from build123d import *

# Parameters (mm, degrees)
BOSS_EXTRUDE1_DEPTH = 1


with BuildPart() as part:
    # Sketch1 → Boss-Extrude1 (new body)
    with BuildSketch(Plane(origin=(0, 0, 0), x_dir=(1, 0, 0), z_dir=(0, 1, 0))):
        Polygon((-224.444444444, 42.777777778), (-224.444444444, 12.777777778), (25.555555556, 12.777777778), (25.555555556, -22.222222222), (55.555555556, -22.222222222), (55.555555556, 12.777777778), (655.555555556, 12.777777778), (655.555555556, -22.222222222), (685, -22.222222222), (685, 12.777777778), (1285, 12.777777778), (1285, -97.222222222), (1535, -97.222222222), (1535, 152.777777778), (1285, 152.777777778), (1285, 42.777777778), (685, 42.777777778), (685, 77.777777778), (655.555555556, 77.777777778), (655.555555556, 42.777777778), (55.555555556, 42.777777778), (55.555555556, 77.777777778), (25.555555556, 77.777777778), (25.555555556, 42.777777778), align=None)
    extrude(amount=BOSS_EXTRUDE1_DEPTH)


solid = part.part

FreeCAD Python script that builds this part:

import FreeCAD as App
import Part
import Sketcher
from FreeCAD import Vector

doc = App.newDocument("Part")
params = doc.addObject("Spreadsheet::Sheet", "Params")
for row, (alias, value) in enumerate([
    ("sketch1_width", "250 mm"),
    ("sketch1_width2", "30 mm"),
    ("sketch1_width3", "600 mm"),
    ("sketch1_height", "35 mm"),
    ("pad1_length", "1 mm"),
], start=1):
    params.set(f"A{row}", alias)
    params.set(f"B{row}", "=" + value)
    params.setAlias(f"B{row}", alias)

body = doc.addObject("PartDesign::Body", "Body")

sketch1 = body.newObject("Sketcher::SketchObject", "Sketch")
sketch1.AttachmentSupport = (doc.getObject("XZ_Plane"), [""])
sketch1.MapMode = "FlatFace"
sketch1.addGeometry(Part.LineSegment(Vector(-224.444444, -42.777778, 0), Vector(-224.444444, -12.777778, 0)), False)
sketch1.addGeometry(Part.LineSegment(Vector(-224.444444, -12.777778, 0), Vector(25.555556, -12.777778, 0)), False)
sketch1.addGeometry(Part.LineSegment(Vector(25.555556, -12.777778, 0), Vector(25.555556, 22.222222, 0)), False)
sketch1.addGeometry(Part.LineSegment(Vector(25.555556, 22.222222, 0), Vector(55.555556, 22.222222, 0)), False)
sketch1.addGeometry(Part.LineSegment(Vector(55.555556, 22.222222, 0), Vector(55.555556, -12.777778, 0)), False)
sketch1.addGeometry(Part.LineSegment(Vector(55.555556, -12.777778, 0), Vector(655.555556, -12.777778, 0)), False)
sketch1.addGeometry(Part.LineSegment(Vector(655.555556, -12.777778, 0), Vector(655.555556, 22.222222, 0)), False)
sketch1.addGeometry(Part.LineSegment(Vector(655.555556, 22.222222, 0), Vector(685, 22.222222, 0)), False)
sketch1.addGeometry(Part.LineSegment(Vector(685, 22.222222, 0), Vector(685, -12.777778, 0)), False)
sketch1.addGeometry(Part.LineSegment(Vector(685, -12.777778, 0), Vector(1285, -12.777778, 0)), False)
sketch1.addGeometry(Part.LineSegment(Vector(1285, -12.777778, 0), Vector(1285, 97.222222, 0)), False)
sketch1.addGeometry(Part.LineSegment(Vector(1285, 97.222222, 0), Vector(1535, 97.222222, 0)), False)
sketch1.addGeometry(Part.LineSegment(Vector(1535, 97.222222, 0), Vector(1535, -152.777778, 0)), False)
sketch1.addGeometry(Part.LineSegment(Vector(1535, -152.777778, 0), Vector(1285, -152.777778, 0)), False)
sketch1.addGeometry(Part.LineSegment(Vector(1285, -152.777778, 0), Vector(1285, -42.777778, 0)), False)
sketch1.addGeometry(Part.LineSegment(Vector(1285, -42.777778, 0), Vector(685, -42.777778, 0)), False)
sketch1.addGeometry(Part.LineSegment(Vector(685, -42.777778, 0), Vector(685, -77.777778, 0)), False)
sketch1.addGeometry(Part.LineSegment(Vector(685, -77.777778, 0), Vector(655.555556, -77.777778, 0)), False)
sketch1.addGeometry(Part.LineSegment(Vector(655.555556, -77.777778, 0), Vector(655.555556, -42.777778, 0)), False)
sketch1.addGeometry(Part.LineSegment(Vector(655.555556, -42.777778, 0), Vector(55.555556, -42.777778, 0)), False)
sketch1.addGeometry(Part.LineSegment(Vector(55.555556, -42.777778, 0), Vector(55.555556, -77.777778, 0)), False)
sketch1.addGeometry(Part.LineSegment(Vector(55.555556, -77.777778, 0), Vector(25.555556, -77.777778, 0)), False)
sketch1.addGeometry(Part.LineSegment(Vector(25.555556, -77.777778, 0), Vector(25.555556, -42.777778, 0)), False)
sketch1.addGeometry(Part.LineSegment(Vector(25.555556, -42.777778, 0), Vector(-224.444444, -42.777778, 0)), False)
sketch1.addConstraint(Sketcher.Constraint("Coincident", 0, 2, 1, 1))
sketch1.addConstraint(Sketcher.Constraint("Coincident", 1, 2, 2, 1))
sketch1.addConstraint(Sketcher.Constraint("Coincident", 2, 2, 3, 1))
sketch1.addConstraint(Sketcher.Constraint("Coincident", 3, 2, 4, 1))
sketch1.addConstraint(Sketcher.Constraint("Coincident", 4, 2, 5, 1))
sketch1.addConstraint(Sketcher.Constraint("Coincident", 5, 2, 6, 1))
sketch1.addConstraint(Sketcher.Constraint("Coincident", 6, 2, 7, 1))
sketch1.addConstraint(Sketcher.Constraint("Coincident", 7, 2, 8, 1))
sketch1.addConstraint(Sketcher.Constraint("Coincident", 8, 2, 9, 1))
sketch1.addConstraint(Sketcher.Constraint("Coincident", 9, 2, 10, 1))
sketch1.addConstraint(Sketcher.Constraint("Coincident", 10, 2, 11, 1))
sketch1.addConstraint(Sketcher.Constraint("Coincident", 11, 2, 12, 1))
sketch1.addConstraint(Sketcher.Constraint("Coincident", 12, 2, 13, 1))
sketch1.addConstraint(Sketcher.Constraint("Coincident", 13, 2, 14, 1))
sketch1.addConstraint(Sketcher.Constraint("Coincident", 14, 2, 15, 1))
sketch1.addConstraint(Sketcher.Constraint("Coincident", 15, 2, 16, 1))
sketch1.addConstraint(Sketcher.Constraint("Coincident", 16, 2, 17, 1))
sketch1.addConstraint(Sketcher.Constraint("Coincident", 17, 2, 18, 1))
sketch1.addConstraint(Sketcher.Constraint("Coincident", 18, 2, 19, 1))
sketch1.addConstraint(Sketcher.Constraint("Coincident", 19, 2, 20, 1))
sketch1.addConstraint(Sketcher.Constraint("Coincident", 20, 2, 21, 1))
sketch1.addConstraint(Sketcher.Constraint("Coincident", 21, 2, 22, 1))
sketch1.addConstraint(Sketcher.Constraint("Coincident", 22, 2, 23, 1))
sketch1.addConstraint(Sketcher.Constraint("Coincident", 23, 2, 0, 1))
sketch1.addConstraint(Sketcher.Constraint("Vertical", 0))
sketch1.addConstraint(Sketcher.Constraint("Horizontal", 1))
sketch1.addConstraint(Sketcher.Constraint("Vertical", 2))
sketch1.addConstraint(Sketcher.Constraint("Horizontal", 3))
sketch1.addConstraint(Sketcher.Constraint("Vertical", 4))
sketch1.addConstraint(Sketcher.Constraint("Horizontal", 5))
sketch1.addConstraint(Sketcher.Constraint("Vertical", 6))
sketch1.addConstraint(Sketcher.Constraint("Horizontal", 7))
sketch1.addConstraint(Sketcher.Constraint("Vertical", 8))
sketch1.addConstraint(Sketcher.Constraint("Horizontal", 9))
sketch1.addConstraint(Sketcher.Constraint("Vertical", 10))
sketch1.addConstraint(Sketcher.Constraint("Horizontal", 11))
sketch1.addConstraint(Sketcher.Constraint("Vertical", 12))
sketch1.addConstraint(Sketcher.Constraint("Horizontal", 13))
sketch1.addConstraint(Sketcher.Constraint("Vertical", 14))
sketch1.addConstraint(Sketcher.Constraint("Horizontal", 15))
sketch1.addConstraint(Sketcher.Constraint("Vertical", 16))
sketch1.addConstraint(Sketcher.Constraint("Horizontal", 17))
sketch1.addConstraint(Sketcher.Constraint("Vertical", 18))
sketch1.addConstraint(Sketcher.Constraint("Horizontal", 19))
sketch1.addConstraint(Sketcher.Constraint("Vertical", 20))
sketch1.addConstraint(Sketcher.Constraint("Horizontal", 21))
sketch1.addConstraint(Sketcher.Constraint("Vertical", 22))
sketch1.addConstraint(Sketcher.Constraint("Horizontal", 23))
sketch1.addConstraint(Sketcher.Constraint("Horizontal", 1, 2, 4, 2))
sketch1.addConstraint(Sketcher.Constraint("Horizontal", 3, 2, 6, 2))
sketch1.addConstraint(Sketcher.Constraint("Horizontal", 5, 2, 8, 2))
sketch1.addConstraint(Sketcher.Constraint("Horizontal", 15, 2, 18, 2))
sketch1.addConstraint(Sketcher.Constraint("Horizontal", 17, 2, 20, 2))
sketch1.addConstraint(Sketcher.Constraint("Horizontal", 19, 2, 22, 2))
sketch1.addConstraint(Sketcher.Constraint("Vertical", 10, 2, 13, 2))
sketch1.addConstraint(Sketcher.Constraint("Vertical", 8, 2, 15, 2))
sketch1.addConstraint(Sketcher.Constraint("Vertical", 6, 2, 17, 2))
sketch1.addConstraint(Sketcher.Constraint("Vertical", 4, 2, 19, 2))
sketch1.addConstraint(Sketcher.Constraint("Vertical", 2, 2, 21, 2))
sketch1.addConstraint(Sketcher.Constraint("Equal", 5, 9))
sketch1.addConstraint(Sketcher.Constraint("Equal", 1, 11))
sketch1.addConstraint(Sketcher.Constraint("Equal", 21, 0))
sketch1.addConstraint(Sketcher.Constraint("Equal", 23, 12))
sketch1.addConstraint(Sketcher.Constraint("Equal", 10, 14))
sketch1.addConstraint(Sketcher.Constraint("Equal", 8, 16))
sketch1.addConstraint(Sketcher.Constraint("DistanceX", 1, 1, 1, 2, 250.0))
sketch1.addConstraint(Sketcher.Constraint("DistanceX", 3, 1, 3, 2, 30.0))
sketch1.addConstraint(Sketcher.Constraint("DistanceX", 5, 1, 5, 2, 600.0))
sketch1.addConstraint(Sketcher.Constraint("DistanceY", 2, 1, 2, 2, 35.0))
sketch1.addConstraint(Sketcher.Constraint("DistanceX", -1, 1, 7, 2, 685.0))
sketch1.addConstraint(Sketcher.Constraint("DistanceX", 7, 1, 7, 2, 29.444444))
sketch1.addConstraint(Sketcher.Constraint("DistanceY", 0, 2, -1, 1, 12.777778))
sketch1.setExpression("Constraints[65]", "Params.sketch1_width")
sketch1.setExpression("Constraints[66]", "Params.sketch1_width2")
sketch1.setExpression("Constraints[67]", "Params.sketch1_width3")
sketch1.setExpression("Constraints[68]", "Params.sketch1_height")
pad1 = body.newObject("PartDesign::Pad", "Pad")
pad1.Profile = sketch1
pad1.setExpression("Length", "Params.pad1_length")
pad1.Reversed = True

doc.recompute()
